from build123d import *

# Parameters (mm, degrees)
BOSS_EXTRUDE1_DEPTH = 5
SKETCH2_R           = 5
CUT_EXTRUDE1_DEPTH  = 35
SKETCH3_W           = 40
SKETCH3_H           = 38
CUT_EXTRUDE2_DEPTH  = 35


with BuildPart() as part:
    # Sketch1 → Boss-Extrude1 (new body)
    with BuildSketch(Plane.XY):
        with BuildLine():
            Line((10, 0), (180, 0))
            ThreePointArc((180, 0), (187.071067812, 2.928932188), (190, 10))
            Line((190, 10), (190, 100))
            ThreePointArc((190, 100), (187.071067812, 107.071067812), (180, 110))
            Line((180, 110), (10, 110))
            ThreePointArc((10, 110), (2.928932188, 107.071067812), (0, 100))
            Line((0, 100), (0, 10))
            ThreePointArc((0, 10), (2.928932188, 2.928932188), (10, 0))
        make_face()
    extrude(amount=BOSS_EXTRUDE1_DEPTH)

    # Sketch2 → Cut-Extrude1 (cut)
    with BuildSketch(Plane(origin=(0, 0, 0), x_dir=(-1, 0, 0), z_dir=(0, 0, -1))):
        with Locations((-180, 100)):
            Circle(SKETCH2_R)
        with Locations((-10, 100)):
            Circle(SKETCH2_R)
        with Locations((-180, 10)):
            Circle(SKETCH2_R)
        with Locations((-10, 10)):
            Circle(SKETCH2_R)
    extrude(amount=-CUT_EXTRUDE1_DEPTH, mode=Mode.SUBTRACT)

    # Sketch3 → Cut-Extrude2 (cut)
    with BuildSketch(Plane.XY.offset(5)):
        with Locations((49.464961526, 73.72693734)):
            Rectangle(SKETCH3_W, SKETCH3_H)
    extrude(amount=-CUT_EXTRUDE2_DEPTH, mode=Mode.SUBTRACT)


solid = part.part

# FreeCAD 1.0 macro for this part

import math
import FreeCAD as App
import Part
import Sketcher

V = App.Vector

doc = App.newDocument("Part")
body = doc.addObject("PartDesign::Body", "Body")

# Sketch on XY plane
sketch1 = body.newObject("Sketcher::SketchObject", "Sketch")
sketch1.AttachmentSupport = (doc.getObject("XY_Plane"), [""])
sketch1.MapMode = "FlatFace"
sketch1.addGeometry([
    Part.LineSegment(V(10, 0, 0), V(180, 0, 0)),  # 0
    Part.ArcOfCircle(Part.Circle(V(180, 10, 0), V(0, 0, 1), 10), math.radians(-90), math.radians(0)),  # 1
    Part.LineSegment(V(190, 10, 0), V(190, 100, 0)),  # 2
    Part.ArcOfCircle(Part.Circle(V(180, 100, 0), V(0, 0, 1), 10), math.radians(0), math.radians(90)),  # 3
    Part.LineSegment(V(180, 110, 0), V(10, 110, 0)),  # 4
    Part.ArcOfCircle(Part.Circle(V(10, 100, 0), V(0, 0, 1), 10), math.radians(90), math.radians(180)),  # 5
    Part.LineSegment(V(0, 100, 0), V(0, 10, 0)),  # 6
    Part.ArcOfCircle(Part.Circle(V(10, 10, 0), V(0, 0, 1), 10), math.radians(180), math.radians(270)),  # 7
], False)
sketch1.addConstraint([
    Sketcher.Constraint("Tangent", 0, 2, 1, 1),
    Sketcher.Constraint("Tangent", 1, 2, 2, 1),
    Sketcher.Constraint("Tangent", 2, 2, 3, 1),
    Sketcher.Constraint("Tangent", 3, 2, 4, 1),
    Sketcher.Constraint("Tangent", 4, 2, 5, 1),
    Sketcher.Constraint("Tangent", 5, 2, 6, 1),
    Sketcher.Constraint("Tangent", 6, 2, 7, 1),
    Sketcher.Constraint("Tangent", 7, 2, 0, 1),
    Sketcher.Constraint("Horizontal", 0),
    Sketcher.Constraint("Vertical", 2),
    Sketcher.Constraint("Horizontal", 4),
    Sketcher.Constraint("Vertical", 6),
    Sketcher.Constraint("Equal", 1, 3),
    Sketcher.Constraint("Equal", 3, 5),
    Sketcher.Constraint("Equal", 5, 7),
    Sketcher.Constraint("PointOnObject", 0, 2, -1),
    Sketcher.Constraint("PointOnObject", 5, 2, -2),
    Sketcher.Constraint("Radius", 1, 10.0),
    Sketcher.Constraint("DistanceX", 0, 1, 0, 2, 170.0),
    Sketcher.Constraint("DistanceY", 2, 1, 2, 2, 90.0),
])
pad1 = body.newObject("PartDesign::Pad", "Pad")
pad1.Profile = sketch1
pad1.Length = 5

# Sketch on XY plane
sketch2 = body.newObject("Sketcher::SketchObject", "Sketch001")
sketch2.AttachmentSupport = (doc.getObject("XY_Plane"), [""])
sketch2.MapMode = "FlatFace"
sketch2.addGeometry([
    Part.Circle(V(180, 100, 0), V(0, 0, 1), 5),
    Part.Circle(V(10, 100, 0), V(0, 0, 1), 5),
    Part.Circle(V(180, 10, 0), V(0, 0, 1), 5),
    Part.Circle(V(10, 10, 0), V(0, 0, 1), 5),
], False)
sketch2.addConstraint([
    Sketcher.Constraint("Equal", 0, 1),
    Sketcher.Constraint("Equal", 1, 2),
    Sketcher.Constraint("Equal", 2, 3),
    Sketcher.Constraint("Horizontal", 0, 3, 1, 3),
    Sketcher.Constraint("Horizontal", 2, 3, 3, 3),
    Sketcher.Constraint("Vertical", 0, 3, 2, 3),
    Sketcher.Constraint("Vertical", 1, 3, 3, 3),
    Sketcher.Constraint("Diameter", 0, 10.0),
    Sketcher.Constraint("DistanceX", -1, 1, 0, 3, 180.0),
    Sketcher.Constraint("DistanceY", -1, 1, 0, 3, 100.0),
    Sketcher.Constraint("DistanceX", -1, 1, 1, 3, 10.0),
    Sketcher.Constraint("DistanceY", -1, 1, 2, 3, 10.0),
])
pocket1 = body.newObject("PartDesign::Pocket", "Pocket")
pocket1.Profile = sketch2
pocket1.Length = 35
pocket1.Reversed = True

# Sketch on XY plane
sketch3 = body.newObject("Sketcher::SketchObject", "Sketch002")
sketch3.AttachmentSupport = (doc.getObject("XY_Plane"), [""])
sketch3.MapMode = "FlatFace"
sketch3.AttachmentOffset = App.Placement(V(0, 0, 5), App.Rotation())
sketch3.addGeometry([
    Part.LineSegment(V(29, 93, 0), V(29, 55, 0)),
    Part.LineSegment(V(29, 55, 0), V(69, 55, 0)),
    Part.LineSegment(V(69, 55, 0), V(69, 93, 0)),
    Part.LineSegment(V(69, 93, 0), V(29, 93, 0)),
], False)
sketch3.addConstraint([
    Sketcher.Constraint("Coincident", 0, 2, 1, 1),
    Sketcher.Constraint("Coincident", 1, 2, 2, 1),
    Sketcher.Constraint("Coincident", 2, 2, 3, 1),
    Sketcher.Constraint("Coincident", 3, 2, 0, 1),
    Sketcher.Constraint("Vertical", 0),
    Sketcher.Constraint("Horizontal", 1),
    Sketcher.Constraint("Vertical", 2),
    Sketcher.Constraint("Horizontal", 3),
    Sketcher.Constraint("DistanceX", 1, 1, 1, 2, 40.0),
    Sketcher.Constraint("DistanceY", 0, 2, 0, 1, 38.0),
    Sketcher.Constraint("DistanceX", -1, 1, 0, 2, 29.464962),
    Sketcher.Constraint("DistanceY", -1, 1, 0, 2, 54.726937),
])
pocket2 = body.newObject("PartDesign::Pocket", "Pocket001")
pocket2.Profile = sketch3
pocket2.Length = 35

doc.recompute()
